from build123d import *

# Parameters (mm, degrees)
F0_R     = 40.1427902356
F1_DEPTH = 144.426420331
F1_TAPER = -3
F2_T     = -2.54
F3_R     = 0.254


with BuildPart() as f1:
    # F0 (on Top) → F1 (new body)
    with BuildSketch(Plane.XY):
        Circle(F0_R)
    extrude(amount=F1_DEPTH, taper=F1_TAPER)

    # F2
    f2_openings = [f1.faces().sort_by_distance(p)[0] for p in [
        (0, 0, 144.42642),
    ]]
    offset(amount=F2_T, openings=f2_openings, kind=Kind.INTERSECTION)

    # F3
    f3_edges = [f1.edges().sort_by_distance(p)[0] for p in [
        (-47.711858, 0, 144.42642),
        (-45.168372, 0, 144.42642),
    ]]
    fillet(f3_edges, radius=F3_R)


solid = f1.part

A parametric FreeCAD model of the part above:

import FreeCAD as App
import Part
import Sketcher
from FreeCAD import Vector
Q = App.Units.Quantity


def edges_at(feature, points):
    """Names of the edges that pass closest to the given points."""
    edges = feature.Shape.Edges
    near = lambda p: min(range(len(edges)), key=lambda i: edges[i].distToShape(Part.Vertex(*p))[0])
    return sorted({f"Edge{near(p) + 1}" for p in points})


def faces_at(feature, points):
    """Names of the faces that lie closest to the given points."""
    faces = feature.Shape.Faces
    near = lambda p: min(range(len(faces)), key=lambda i: faces[i].distToShape(Part.Vertex(*p))[0])
    return sorted({f"Face{near(p) + 1}" for p in points})

doc = App.newDocument("Part")
params = doc.addObject("Spreadsheet::Sheet", "Params")
for row, (alias, value) in enumerate([
    ("pad1_length", "144.42642 mm"),
    ("pad1_taper", "3 deg"),
    ("thickness_wall", "0.1 in"),
    ("fillet_radius", "0.01 in"),
], start=1):
    params.set(f"A{row}", alias)
    params.set(f"B{row}", "=" + value)
    params.setAlias(f"B{row}", alias)

body = doc.addObject("PartDesign::Body", "Body")

# Sketch on XY plane
sketch1 = body.newObject("Sketcher::SketchObject", "Sketch")
sketch1.AttachmentSupport = (doc.getObject("XY_Plane"), [""])
sketch1.MapMode = "FlatFace"
sketch1.addGeometry(Part.Circle(Vector(0, 0, 0), Vector(0, 0, 1), 40.14279), False)
sketch1.addConstraint([
    Sketcher.Constraint("Coincident", 0, 3, -1, 1),
    Sketcher.Constraint("Diameter", 0, Q("80.28558 mm")),
])
pad1 = body.newObject("PartDesign::Pad", "Pad")
pad1.Profile = sketch1
pad1.setExpression("Length", "Params.pad1_length")
pad1.setExpression("TaperAngle", "Params.pad1_taper")
doc.recompute()

thickness = body.newObject("PartDesign::Thickness", "Thickness")
thickness.Base = (pad1, faces_at(pad1, [(0, 0, 144.426)]))
thickness.setExpression("Value", "Params.thickness_wall")
thickness.Reversed = True
thickness.Join = "Intersection"
doc.recompute()

fillet = body.newObject("PartDesign::Fillet", "Fillet")
fillet.Base = (thickness, edges_at(thickness, [(-47.712, 0, 144.426), (-45.168, 0, 144.426)]))
fillet.setExpression("Radius", "Params.fillet_radius")

doc.recompute()
